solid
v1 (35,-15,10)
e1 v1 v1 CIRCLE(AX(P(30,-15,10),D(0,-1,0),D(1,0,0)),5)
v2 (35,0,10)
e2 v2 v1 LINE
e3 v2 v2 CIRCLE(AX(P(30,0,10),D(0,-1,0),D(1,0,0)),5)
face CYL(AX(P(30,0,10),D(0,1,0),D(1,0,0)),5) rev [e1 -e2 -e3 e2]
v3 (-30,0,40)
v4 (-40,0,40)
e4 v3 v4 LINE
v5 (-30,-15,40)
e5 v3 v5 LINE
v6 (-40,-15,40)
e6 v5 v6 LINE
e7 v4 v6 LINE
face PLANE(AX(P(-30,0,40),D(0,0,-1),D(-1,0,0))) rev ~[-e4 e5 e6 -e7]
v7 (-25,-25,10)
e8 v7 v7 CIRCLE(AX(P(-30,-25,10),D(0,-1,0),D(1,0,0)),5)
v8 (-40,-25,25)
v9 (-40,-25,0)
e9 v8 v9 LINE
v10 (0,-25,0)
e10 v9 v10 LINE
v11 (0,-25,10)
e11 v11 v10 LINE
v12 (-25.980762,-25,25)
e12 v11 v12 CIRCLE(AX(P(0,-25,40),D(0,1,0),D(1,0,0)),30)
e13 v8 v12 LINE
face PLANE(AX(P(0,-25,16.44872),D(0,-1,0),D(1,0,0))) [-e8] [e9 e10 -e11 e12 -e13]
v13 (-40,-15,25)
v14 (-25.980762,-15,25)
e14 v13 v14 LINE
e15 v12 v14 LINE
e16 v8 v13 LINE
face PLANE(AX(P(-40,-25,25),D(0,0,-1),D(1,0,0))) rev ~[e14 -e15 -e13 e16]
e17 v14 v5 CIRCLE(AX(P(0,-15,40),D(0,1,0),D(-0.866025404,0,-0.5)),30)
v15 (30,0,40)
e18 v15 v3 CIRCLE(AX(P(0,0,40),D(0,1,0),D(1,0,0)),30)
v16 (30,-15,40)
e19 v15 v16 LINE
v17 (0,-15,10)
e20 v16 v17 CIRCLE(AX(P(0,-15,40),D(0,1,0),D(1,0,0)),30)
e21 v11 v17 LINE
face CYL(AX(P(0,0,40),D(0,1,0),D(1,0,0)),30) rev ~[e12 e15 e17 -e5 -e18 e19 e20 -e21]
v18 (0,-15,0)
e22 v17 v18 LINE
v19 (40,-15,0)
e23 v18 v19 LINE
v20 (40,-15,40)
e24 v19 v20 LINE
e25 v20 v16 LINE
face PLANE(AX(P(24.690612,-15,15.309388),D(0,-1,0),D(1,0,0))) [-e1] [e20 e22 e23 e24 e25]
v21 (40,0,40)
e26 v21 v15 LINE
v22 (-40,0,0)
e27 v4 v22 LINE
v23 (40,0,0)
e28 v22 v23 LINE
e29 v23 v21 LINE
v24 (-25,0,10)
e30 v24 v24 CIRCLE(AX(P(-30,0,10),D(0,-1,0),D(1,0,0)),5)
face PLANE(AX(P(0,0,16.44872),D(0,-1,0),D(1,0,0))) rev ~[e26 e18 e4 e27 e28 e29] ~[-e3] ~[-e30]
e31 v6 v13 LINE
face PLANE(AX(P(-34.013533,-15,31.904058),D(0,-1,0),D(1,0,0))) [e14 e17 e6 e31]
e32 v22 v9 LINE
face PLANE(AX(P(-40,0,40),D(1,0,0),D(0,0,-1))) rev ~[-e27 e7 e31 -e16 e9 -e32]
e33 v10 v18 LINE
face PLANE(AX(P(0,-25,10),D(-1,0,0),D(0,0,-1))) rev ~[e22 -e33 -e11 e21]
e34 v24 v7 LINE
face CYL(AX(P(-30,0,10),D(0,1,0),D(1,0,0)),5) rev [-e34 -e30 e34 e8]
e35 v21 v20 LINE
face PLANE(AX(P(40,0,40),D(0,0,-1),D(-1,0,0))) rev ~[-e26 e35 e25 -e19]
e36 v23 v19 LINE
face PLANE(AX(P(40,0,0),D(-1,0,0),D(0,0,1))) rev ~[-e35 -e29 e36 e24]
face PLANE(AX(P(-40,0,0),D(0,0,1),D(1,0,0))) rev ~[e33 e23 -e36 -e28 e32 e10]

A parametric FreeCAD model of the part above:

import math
import FreeCAD as App
import Part
import Sketcher

V = App.Vector

doc = App.newDocument("Part")
body = doc.addObject("PartDesign::Body", "Body")

# Sketch on XZ plane
sketch1 = body.newObject("Sketcher::SketchObject", "Sketch")
sketch1.AttachmentSupport = (doc.getObject("XZ_Plane"), [""])
sketch1.MapMode = "FlatFace"
sketch1.addGeometry([
    Part.LineSegment(V(-30, 40, 0), V(-40, 40, 0)),  # 0
    Part.LineSegment(V(-40, 40, 0), V(-40, 0, 0)),  # 1
    Part.LineSegment(V(-40, 0, 0), V(40, 0, 0)),  # 2
    Part.LineSegment(V(40, 0, 0), V(40, 40, 0)),  # 3
    Part.LineSegment(V(40, 40, 0), V(30, 40, 0)),  # 4
    Part.ArcOfCircle(Part.Circle(V(0, 40, 0), V(0, 0, 1), 30), math.radians(180), math.radians(360)),  # 5
    Part.Circle(V(-30, 10, 0), V(0, 0, 1), 5),  # 6
    Part.Circle(V(30, 10, 0), V(0, 0, 1), 5),  # 7
], False)
sketch1.addConstraint([
    Sketcher.Constraint("Coincident", 0, 2, 1, 1),
    Sketcher.Constraint("Coincident", 1, 2, 2, 1),
    Sketcher.Constraint("Coincident", 2, 2, 3, 1),
    Sketcher.Constraint("Coincident", 3, 2, 4, 1),
    Sketcher.Constraint("Coincident", 4, 2, 5, 2),
    Sketcher.Constraint("Coincident", 5, 1, 0, 1),
    Sketcher.Constraint("Horizontal", 0),
    Sketcher.Constraint("Vertical", 1),
    Sketcher.Constraint("Horizontal", 2),
    Sketcher.Constraint("Vertical", 3),
    Sketcher.Constraint("Horizontal", 4),
    Sketcher.Constraint("Equal", 6, 7),
    Sketcher.Constraint("Symmetric", 1, 2, 2, 2, -1, 1),
    Sketcher.Constraint("Symmetric", 6, 3, 7, 3, -2),
    Sketcher.Constraint("Symmetric", 4, 2, 5, 1, -2),
    Sketcher.Constraint("Horizontal", 5, 3, 0, 2),
    Sketcher.Constraint("Vertical", 7, 3, 4, 2),
    Sketcher.Constraint("Diameter", 6, 10.0),
    Sketcher.Constraint("Radius", 5, 30.0),
    Sketcher.Constraint("DistanceX", 0, 2, 0, 1, 10.0),
    Sketcher.Constraint("DistanceY", 1, 2, 1, 1, 40.0),
    Sketcher.Constraint("DistanceY", -1, 1, 6, 3, 10.0),
])
pad1 = body.newObject("PartDesign::Pad", "Pad")
pad1.Profile = sketch1
pad1.Length = 25

# Sketch on XZ plane
sketch2 = body.newObject("Sketcher::SketchObject", "Sketch001")
sketch2.AttachmentSupport = (doc.getObject("XZ_Plane"), [""])
sketch2.MapMode = "FlatFace"
sketch2.AttachmentOffset = App.Placement(V(0, 0, 25), App.Rotation())
sketch2.addGeometry([
    Part.LineSegment(V(-40, 40, 0), V(-40, 25, 0)),  # 0
    Part.LineSegment(V(-40, 25, 0), V(-26, 25, 0)),  # 1
    Part.ArcOfCircle(Part.Circle(V(0, 40, 0), V(0, 0, 1), 30), math.radians(180), math.radians(210)),  # 2
    Part.LineSegment(V(-30, 40, 0), V(-40, 40, 0)),  # 3
    Part.ArcOfCircle(Part.Circle(V(0, 40, 0), V(0, 0, 1), 30), math.radians(-90), math.radians(0)),  # 4
    Part.LineSegment(V(0, 10, 0), V(0, 0, 0)),  # 5
    Part.LineSegment(V(0, 0, 0), V(40, 0, 0)),  # 6
    Part.LineSegment(V(40, 0, 0), V(40, 40, 0)),  # 7
    Part.LineSegment(V(40, 40, 0), V(30, 40, 0)),  # 8
    Part.Circle(V(30, 10, 0), V(0, 0, 1), 5),  # 9
], False)
sketch2.addConstraint([
    Sketcher.Constraint("Coincident", 0, 2, 1, 1),
    Sketcher.Constraint("Coincident", 1, 2, 2, 2),
    Sketcher.Constraint("Coincident", 2, 1, 3, 1),
    Sketcher.Constraint("Coincident", 3, 2, 0, 1),
    Sketcher.Constraint("Coincident", 4, 1, 5, 1),
    Sketcher.Constraint("Coincident", 5, 2, 6, 1),
    Sketcher.Constraint("Coincident", 6, 2, 7, 1),
    Sketcher.Constraint("Coincident", 7, 2, 8, 1),
    Sketcher.Constraint("Coincident", 8, 2, 4, 2),
    Sketcher.Constraint("Vertical", 0),
    Sketcher.Constraint("Horizontal", 1),
    Sketcher.Constraint("Horizontal", 3),
    Sketcher.Constraint("Vertical", 5),
    Sketcher.Constraint("Horizontal", 6),
    Sketcher.Constraint("Vertical", 7),
    Sketcher.Constraint("Horizontal", 8),
    Sketcher.Constraint("Coincident", 5, 2, -1, 1),
    Sketcher.Constraint("Coincident", 4, 3, 2, 3),
    Sketcher.Constraint("Equal", 2, 4),
    Sketcher.Constraint("Symmetric", 3, 2, 7, 2, -2),
    Sketcher.Constraint("PointOnObject", 2, 3, -2),
    Sketcher.Constraint("Horizontal", 4, 3, 2, 1),
    Sketcher.Constraint("Horizontal", 9, 3, 4, 1),
    Sketcher.Constraint("Vertical", 9, 3, 8, 2),
    Sketcher.Constraint("Equal", 8, 5),
    Sketcher.Constraint("Diameter", 9, 10.0),
    Sketcher.Constraint("Radius", 2, 30.0),
    Sketcher.Constraint("DistanceX", 3, 2, 3, 1, 10.0),
    Sketcher.Constraint("DistanceY", 0, 2, 0, 1, 15.0),
])
pocket1 = body.newObject("PartDesign::Pocket", "Pocket")
pocket1.Profile = sketch2
pocket1.Length = 10

doc.recompute()
